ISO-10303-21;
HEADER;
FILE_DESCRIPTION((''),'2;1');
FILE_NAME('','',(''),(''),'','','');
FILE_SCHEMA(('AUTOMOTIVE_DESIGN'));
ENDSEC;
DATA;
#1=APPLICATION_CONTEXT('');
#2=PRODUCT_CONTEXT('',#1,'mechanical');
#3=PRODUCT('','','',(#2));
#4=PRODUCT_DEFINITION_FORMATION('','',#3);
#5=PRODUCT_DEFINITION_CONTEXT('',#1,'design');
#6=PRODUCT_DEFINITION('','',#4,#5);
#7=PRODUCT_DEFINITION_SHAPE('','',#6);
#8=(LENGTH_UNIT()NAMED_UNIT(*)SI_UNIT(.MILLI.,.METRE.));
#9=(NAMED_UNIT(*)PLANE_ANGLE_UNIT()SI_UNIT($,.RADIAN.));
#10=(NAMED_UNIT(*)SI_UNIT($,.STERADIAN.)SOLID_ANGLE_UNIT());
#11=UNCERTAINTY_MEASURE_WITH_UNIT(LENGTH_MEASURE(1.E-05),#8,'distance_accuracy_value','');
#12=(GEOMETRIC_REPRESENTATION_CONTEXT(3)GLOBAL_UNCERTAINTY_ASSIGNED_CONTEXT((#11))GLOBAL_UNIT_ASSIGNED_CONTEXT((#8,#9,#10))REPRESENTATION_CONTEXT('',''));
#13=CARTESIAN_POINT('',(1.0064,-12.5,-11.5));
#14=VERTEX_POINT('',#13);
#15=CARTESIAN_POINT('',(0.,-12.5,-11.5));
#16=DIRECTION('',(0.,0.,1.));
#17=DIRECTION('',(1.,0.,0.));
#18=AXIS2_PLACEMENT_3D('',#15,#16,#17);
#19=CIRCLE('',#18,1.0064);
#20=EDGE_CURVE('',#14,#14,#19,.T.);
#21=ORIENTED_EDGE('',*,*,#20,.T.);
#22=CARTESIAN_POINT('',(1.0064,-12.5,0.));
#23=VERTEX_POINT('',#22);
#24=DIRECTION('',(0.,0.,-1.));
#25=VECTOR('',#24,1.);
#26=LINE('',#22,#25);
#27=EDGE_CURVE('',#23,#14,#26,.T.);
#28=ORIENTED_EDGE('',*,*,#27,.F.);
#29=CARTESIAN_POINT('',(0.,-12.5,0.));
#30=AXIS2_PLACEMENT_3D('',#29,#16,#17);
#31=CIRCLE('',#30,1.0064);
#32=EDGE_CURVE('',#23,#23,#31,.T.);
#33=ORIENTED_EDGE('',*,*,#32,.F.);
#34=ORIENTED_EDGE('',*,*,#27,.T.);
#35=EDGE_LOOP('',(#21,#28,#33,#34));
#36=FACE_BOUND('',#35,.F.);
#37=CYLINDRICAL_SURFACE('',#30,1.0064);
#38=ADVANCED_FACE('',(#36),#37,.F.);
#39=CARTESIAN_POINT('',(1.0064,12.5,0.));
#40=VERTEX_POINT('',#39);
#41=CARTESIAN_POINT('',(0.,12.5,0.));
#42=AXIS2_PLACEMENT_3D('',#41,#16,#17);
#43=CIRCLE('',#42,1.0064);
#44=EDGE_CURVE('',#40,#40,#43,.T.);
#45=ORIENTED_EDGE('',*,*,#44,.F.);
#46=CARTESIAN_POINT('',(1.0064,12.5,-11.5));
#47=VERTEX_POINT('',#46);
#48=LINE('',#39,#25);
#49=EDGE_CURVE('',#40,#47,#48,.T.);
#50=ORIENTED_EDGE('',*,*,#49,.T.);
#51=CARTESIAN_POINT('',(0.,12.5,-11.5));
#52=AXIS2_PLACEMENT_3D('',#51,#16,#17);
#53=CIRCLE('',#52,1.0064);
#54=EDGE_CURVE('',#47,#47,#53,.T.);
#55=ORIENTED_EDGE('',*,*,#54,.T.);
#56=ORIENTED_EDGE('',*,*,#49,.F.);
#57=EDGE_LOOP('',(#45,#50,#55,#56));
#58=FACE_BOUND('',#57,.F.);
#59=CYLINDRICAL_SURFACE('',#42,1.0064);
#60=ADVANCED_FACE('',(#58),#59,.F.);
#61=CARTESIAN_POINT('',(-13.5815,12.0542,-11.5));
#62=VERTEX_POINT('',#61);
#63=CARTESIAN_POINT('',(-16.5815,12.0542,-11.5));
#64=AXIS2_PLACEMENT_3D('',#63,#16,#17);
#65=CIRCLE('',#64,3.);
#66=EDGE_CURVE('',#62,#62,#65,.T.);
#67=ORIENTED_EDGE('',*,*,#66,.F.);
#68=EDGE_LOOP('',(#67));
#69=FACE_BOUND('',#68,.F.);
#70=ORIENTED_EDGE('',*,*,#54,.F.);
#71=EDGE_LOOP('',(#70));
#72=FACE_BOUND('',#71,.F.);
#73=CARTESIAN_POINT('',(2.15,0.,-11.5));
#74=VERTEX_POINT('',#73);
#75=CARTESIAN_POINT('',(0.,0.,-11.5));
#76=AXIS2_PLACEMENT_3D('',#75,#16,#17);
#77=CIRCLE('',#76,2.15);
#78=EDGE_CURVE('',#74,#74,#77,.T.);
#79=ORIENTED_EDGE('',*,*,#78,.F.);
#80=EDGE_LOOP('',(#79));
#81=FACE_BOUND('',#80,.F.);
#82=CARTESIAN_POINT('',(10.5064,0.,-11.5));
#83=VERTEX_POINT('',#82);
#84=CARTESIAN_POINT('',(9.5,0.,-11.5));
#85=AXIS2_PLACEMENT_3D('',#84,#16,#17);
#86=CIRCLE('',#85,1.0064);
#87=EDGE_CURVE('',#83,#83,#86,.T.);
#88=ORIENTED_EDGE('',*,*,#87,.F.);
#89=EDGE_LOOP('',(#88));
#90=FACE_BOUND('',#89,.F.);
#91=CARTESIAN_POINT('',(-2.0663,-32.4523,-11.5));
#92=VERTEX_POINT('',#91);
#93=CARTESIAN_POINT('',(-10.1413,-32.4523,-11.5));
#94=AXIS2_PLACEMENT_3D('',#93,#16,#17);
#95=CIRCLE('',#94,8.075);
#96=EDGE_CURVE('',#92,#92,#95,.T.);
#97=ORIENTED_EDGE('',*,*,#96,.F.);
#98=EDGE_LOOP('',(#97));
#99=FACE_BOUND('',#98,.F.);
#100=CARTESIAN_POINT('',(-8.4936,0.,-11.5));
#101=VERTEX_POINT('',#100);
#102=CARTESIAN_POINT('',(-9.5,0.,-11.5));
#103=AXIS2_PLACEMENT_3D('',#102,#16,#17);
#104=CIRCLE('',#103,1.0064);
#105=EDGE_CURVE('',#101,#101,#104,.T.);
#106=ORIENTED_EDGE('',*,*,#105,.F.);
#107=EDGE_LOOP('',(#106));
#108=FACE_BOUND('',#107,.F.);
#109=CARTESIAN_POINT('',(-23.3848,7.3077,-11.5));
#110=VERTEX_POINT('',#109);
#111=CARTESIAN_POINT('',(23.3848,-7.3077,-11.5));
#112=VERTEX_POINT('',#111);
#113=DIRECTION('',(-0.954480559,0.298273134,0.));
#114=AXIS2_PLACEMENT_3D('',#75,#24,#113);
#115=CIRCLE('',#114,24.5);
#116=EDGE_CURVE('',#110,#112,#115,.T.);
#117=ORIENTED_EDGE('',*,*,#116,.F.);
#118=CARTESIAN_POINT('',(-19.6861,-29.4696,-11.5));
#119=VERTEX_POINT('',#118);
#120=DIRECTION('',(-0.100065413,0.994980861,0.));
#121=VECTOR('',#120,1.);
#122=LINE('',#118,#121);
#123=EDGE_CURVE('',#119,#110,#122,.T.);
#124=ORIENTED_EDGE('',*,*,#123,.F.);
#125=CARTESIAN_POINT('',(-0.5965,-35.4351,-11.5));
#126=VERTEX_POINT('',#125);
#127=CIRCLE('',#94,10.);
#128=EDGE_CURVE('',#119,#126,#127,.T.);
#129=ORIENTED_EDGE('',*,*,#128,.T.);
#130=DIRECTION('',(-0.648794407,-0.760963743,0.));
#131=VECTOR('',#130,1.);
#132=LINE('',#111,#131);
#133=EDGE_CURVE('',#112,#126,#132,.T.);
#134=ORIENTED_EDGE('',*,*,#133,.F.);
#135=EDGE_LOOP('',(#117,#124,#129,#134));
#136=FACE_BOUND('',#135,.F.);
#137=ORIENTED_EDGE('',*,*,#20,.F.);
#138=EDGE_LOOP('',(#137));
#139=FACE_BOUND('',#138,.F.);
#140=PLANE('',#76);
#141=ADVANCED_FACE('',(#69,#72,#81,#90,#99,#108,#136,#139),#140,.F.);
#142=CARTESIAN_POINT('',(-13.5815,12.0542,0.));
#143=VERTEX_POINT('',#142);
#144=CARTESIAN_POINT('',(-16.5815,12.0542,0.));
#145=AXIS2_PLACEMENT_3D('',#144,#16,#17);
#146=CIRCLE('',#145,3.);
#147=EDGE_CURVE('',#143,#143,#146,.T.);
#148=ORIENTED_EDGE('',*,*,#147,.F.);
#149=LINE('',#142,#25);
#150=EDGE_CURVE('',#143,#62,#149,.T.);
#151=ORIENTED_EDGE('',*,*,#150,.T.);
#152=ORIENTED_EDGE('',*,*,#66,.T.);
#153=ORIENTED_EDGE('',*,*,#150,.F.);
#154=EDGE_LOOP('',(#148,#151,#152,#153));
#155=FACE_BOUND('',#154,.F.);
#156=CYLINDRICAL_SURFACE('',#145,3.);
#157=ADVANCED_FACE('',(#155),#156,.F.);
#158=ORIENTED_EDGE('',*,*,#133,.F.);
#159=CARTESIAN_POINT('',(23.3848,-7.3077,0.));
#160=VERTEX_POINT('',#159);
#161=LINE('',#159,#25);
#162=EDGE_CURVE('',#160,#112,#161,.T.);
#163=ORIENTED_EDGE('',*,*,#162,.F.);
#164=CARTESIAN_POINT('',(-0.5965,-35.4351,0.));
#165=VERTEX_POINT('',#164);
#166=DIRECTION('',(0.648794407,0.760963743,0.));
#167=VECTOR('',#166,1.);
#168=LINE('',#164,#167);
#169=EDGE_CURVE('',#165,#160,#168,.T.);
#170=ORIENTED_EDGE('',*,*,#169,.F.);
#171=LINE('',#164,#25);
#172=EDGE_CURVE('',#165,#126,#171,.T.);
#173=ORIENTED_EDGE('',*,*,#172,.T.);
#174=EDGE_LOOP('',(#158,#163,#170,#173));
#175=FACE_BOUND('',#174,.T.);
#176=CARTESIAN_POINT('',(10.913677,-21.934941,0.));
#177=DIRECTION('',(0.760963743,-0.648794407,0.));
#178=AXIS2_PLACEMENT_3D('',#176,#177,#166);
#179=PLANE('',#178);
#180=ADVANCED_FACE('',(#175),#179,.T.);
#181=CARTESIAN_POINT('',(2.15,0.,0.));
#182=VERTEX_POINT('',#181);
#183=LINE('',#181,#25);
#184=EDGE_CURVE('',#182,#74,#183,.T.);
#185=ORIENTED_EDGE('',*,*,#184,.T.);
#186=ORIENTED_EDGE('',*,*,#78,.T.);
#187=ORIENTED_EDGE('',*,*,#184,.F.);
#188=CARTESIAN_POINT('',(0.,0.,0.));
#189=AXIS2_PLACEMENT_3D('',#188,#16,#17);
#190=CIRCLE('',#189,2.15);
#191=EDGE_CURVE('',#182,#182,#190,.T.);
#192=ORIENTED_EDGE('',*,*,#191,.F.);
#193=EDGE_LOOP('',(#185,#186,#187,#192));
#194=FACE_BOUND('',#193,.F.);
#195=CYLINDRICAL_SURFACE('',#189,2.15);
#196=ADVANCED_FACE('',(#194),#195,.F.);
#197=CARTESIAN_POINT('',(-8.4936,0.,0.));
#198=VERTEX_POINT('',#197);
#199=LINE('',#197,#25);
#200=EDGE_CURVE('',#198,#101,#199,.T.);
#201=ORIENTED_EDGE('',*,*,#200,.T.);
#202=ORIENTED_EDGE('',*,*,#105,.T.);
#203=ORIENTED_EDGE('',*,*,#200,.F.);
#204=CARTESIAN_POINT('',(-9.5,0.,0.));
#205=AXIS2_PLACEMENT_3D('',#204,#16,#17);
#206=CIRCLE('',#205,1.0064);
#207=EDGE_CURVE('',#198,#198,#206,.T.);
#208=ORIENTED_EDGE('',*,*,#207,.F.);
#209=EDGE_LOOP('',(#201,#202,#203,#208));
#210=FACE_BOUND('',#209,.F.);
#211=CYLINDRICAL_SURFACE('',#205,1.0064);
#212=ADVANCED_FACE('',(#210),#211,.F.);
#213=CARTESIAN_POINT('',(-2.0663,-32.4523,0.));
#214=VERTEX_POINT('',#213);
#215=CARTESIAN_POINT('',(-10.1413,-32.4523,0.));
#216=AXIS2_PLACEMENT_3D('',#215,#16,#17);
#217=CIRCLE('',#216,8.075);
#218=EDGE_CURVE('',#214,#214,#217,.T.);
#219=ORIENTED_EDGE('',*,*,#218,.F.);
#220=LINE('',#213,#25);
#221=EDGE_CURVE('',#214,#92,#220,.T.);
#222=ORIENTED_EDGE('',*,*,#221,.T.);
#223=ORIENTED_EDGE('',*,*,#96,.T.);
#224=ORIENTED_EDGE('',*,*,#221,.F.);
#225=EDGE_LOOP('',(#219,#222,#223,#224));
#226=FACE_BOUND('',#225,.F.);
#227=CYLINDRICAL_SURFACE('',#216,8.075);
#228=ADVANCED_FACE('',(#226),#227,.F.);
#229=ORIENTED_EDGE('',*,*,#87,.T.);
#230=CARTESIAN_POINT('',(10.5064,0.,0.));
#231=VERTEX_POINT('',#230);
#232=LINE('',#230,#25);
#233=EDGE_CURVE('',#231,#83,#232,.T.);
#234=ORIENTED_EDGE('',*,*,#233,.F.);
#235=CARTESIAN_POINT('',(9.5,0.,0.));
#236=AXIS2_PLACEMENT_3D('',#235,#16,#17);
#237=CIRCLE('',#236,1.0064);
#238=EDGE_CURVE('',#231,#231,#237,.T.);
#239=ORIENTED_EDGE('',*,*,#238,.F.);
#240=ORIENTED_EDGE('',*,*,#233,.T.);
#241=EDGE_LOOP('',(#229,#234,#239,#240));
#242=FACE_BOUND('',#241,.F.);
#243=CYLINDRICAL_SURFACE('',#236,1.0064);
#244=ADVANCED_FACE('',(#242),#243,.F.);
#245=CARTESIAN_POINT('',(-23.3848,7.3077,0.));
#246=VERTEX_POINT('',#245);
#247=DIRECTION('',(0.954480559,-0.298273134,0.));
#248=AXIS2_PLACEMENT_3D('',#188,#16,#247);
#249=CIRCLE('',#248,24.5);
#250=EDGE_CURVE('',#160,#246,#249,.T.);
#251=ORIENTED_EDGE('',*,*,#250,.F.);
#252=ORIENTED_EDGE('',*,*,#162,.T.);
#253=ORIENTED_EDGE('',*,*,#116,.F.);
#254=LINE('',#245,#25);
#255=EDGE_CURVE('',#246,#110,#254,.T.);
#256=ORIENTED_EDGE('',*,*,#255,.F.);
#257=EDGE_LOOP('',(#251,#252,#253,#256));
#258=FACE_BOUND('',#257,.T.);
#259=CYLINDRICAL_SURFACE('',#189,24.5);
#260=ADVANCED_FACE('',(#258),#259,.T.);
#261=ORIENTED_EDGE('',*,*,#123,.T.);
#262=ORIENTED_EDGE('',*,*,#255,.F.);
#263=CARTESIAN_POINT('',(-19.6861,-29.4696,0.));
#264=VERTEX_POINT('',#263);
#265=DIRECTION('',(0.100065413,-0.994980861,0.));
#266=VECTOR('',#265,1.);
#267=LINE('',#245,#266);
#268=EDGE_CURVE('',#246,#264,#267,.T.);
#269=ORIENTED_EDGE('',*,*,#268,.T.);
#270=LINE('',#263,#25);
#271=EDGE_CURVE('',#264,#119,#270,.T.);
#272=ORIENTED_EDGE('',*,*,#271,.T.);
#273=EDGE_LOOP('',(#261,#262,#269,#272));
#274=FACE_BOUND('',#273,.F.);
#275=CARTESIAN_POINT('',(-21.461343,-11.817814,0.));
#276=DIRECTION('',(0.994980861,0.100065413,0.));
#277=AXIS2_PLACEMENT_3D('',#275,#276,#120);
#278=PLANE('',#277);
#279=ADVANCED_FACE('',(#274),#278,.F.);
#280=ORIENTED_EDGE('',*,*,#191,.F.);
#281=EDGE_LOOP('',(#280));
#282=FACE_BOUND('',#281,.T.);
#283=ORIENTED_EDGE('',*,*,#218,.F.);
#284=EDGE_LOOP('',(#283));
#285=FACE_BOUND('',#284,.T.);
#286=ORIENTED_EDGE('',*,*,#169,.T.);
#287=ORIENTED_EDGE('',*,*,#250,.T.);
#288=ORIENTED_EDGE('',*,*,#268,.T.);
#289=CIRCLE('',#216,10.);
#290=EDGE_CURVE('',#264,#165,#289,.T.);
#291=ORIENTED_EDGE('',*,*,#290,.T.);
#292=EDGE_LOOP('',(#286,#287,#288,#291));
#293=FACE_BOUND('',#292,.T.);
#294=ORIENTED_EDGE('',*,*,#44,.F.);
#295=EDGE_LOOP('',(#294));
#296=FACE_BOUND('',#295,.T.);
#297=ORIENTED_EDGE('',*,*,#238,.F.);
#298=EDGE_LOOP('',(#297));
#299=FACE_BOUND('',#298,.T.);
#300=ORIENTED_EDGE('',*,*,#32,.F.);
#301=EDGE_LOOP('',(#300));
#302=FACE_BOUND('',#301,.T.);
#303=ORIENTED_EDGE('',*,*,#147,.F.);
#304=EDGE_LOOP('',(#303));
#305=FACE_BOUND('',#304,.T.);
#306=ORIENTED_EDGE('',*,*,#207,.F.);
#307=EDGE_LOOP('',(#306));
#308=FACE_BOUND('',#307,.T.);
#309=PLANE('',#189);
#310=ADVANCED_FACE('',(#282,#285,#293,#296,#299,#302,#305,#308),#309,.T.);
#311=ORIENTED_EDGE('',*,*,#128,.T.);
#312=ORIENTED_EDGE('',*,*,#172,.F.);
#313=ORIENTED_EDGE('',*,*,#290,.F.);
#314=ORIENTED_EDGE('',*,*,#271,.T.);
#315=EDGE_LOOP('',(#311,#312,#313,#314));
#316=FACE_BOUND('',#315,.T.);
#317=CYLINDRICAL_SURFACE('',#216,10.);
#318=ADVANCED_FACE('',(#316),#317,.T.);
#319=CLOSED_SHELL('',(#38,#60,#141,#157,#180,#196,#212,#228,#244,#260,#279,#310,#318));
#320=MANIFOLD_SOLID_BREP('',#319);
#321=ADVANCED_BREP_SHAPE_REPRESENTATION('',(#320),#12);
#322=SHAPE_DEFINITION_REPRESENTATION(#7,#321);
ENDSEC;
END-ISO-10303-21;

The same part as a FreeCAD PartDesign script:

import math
import FreeCAD as App
import Part
import Sketcher
from FreeCAD import Vector
Q = App.Units.Quantity

doc = App.newDocument("Part")
body = doc.addObject("PartDesign::Body", "Body")

sketch1 = doc.addObject("Sketcher::SketchObject", "Sketch")
body.addObject(sketch1)
sketch1.AttachmentSupport = (doc.XY_Plane, [""])
sketch1.MapMode = "FlatFace"
sketch1.addGeometry([
    Part.LineSegment(Vector(-23.4, 7.3, 0), Vector(-19.7, -29.5, 0)),
    Part.ArcOfCircle(Part.Circle(Vector(-10.1, -32.5, 0), Vector(0, 0, 1), 10), math.radians(163), math.radians(343)),
    Part.LineSegment(Vector(-0.6, -35.4, 0), Vector(23.4, -7.3, 0)),
    Part.ArcOfCircle(Part.Circle(Vector(0, 0, 0), Vector(0, 0, 1), 24.5), math.radians(-17), math.radians(163)),
    Part.Circle(Vector(0, -12.5, 0), Vector(0, 0, 1), 1),
    Part.Circle(Vector(-9.5, 0, 0), Vector(0, 0, 1), 1),
    Part.Circle(Vector(0, 0, 0), Vector(0, 0, 1), 2.1),
    Part.Circle(Vector(0, 12.5, 0), Vector(0, 0, 1), 1),
    Part.Circle(Vector(9.5, 0, 0), Vector(0, 0, 1), 1),
    Part.Circle(Vector(-16.6, 12.1, 0), Vector(0, 0, 1), 3),
    Part.Circle(Vector(-10.1, -32.5, 0), Vector(0, 0, 1), 8.1),
], False)
sketch1.addConstraint([
    Sketcher.Constraint("Coincident", 0, 2, 1, 1),
    Sketcher.Constraint("Coincident", 1, 2, 2, 1),
    Sketcher.Constraint("Coincident", 2, 2, 3, 1),
    Sketcher.Constraint("Coincident", 3, 2, 0, 1),
    Sketcher.Constraint("Coincident", 3, 3, -1, 1),
    Sketcher.Constraint("Coincident", 6, 3, -1, 1),
    Sketcher.Constraint("Coincident", 10, 3, 1, 3),
    Sketcher.Constraint("Equal", 4, 5),
    Sketcher.Constraint("Equal", 5, 7),
    Sketcher.Constraint("Equal", 7, 8),
    Sketcher.Constraint("Symmetric", 4, 3, 7, 3, -1, 1),
    Sketcher.Constraint("Symmetric", 5, 3, 8, 3, -1, 1),
    Sketcher.Constraint("PointOnObject", 4, 3, -2),
    Sketcher.Constraint("PointOnObject", 5, 3, -1),
    Sketcher.Constraint("Equal", 0, 2),
    Sketcher.Constraint("Diameter", 9, Q("6 mm")),
    Sketcher.Constraint("Radius", 1, Q("10 mm")),
    Sketcher.Constraint("Diameter", 6, Q("4.3 mm")),
    Sketcher.Constraint("Radius", 3, Q("24.5 mm")),
    Sketcher.Constraint("Diameter", 10, Q("16.15 mm")),
    Sketcher.Constraint("DistanceY", 4, 3, 7, 3, Q("25 mm")),
    Sketcher.Constraint("DistanceX", 5, 3, 8, 3, Q("19 mm")),
    Sketcher.Constraint("Diameter", 4, Q("2.0128 mm")),
    Sketcher.Constraint("Angle", 2, Q("49.5492 deg")),
    Sketcher.Constraint("DistanceX", 0, 2, -1, 1, Q("19.686 mm")),
    Sketcher.Constraint("DistanceY", 1, 2, -1, 1, Q("35.435 mm")),
    Sketcher.Constraint("Distance", 0, Q("36.9628 mm")),
    Sketcher.Constraint("DistanceX", 1, 3, -1, 1, Q("10.1413 mm")),
    Sketcher.Constraint("DistanceX", 9, 3, -1, 1, Q("16.5815 mm")),
    Sketcher.Constraint("DistanceY", -1, 1, 9, 3, Q("12.0542 mm")),
])
pad1 = doc.addObject("PartDesign::Pad", "Pad")
body.addObject(pad1)
pad1.Profile = sketch1
pad1.Length = 11.5
pad1.Reversed = True

doc.recompute()
